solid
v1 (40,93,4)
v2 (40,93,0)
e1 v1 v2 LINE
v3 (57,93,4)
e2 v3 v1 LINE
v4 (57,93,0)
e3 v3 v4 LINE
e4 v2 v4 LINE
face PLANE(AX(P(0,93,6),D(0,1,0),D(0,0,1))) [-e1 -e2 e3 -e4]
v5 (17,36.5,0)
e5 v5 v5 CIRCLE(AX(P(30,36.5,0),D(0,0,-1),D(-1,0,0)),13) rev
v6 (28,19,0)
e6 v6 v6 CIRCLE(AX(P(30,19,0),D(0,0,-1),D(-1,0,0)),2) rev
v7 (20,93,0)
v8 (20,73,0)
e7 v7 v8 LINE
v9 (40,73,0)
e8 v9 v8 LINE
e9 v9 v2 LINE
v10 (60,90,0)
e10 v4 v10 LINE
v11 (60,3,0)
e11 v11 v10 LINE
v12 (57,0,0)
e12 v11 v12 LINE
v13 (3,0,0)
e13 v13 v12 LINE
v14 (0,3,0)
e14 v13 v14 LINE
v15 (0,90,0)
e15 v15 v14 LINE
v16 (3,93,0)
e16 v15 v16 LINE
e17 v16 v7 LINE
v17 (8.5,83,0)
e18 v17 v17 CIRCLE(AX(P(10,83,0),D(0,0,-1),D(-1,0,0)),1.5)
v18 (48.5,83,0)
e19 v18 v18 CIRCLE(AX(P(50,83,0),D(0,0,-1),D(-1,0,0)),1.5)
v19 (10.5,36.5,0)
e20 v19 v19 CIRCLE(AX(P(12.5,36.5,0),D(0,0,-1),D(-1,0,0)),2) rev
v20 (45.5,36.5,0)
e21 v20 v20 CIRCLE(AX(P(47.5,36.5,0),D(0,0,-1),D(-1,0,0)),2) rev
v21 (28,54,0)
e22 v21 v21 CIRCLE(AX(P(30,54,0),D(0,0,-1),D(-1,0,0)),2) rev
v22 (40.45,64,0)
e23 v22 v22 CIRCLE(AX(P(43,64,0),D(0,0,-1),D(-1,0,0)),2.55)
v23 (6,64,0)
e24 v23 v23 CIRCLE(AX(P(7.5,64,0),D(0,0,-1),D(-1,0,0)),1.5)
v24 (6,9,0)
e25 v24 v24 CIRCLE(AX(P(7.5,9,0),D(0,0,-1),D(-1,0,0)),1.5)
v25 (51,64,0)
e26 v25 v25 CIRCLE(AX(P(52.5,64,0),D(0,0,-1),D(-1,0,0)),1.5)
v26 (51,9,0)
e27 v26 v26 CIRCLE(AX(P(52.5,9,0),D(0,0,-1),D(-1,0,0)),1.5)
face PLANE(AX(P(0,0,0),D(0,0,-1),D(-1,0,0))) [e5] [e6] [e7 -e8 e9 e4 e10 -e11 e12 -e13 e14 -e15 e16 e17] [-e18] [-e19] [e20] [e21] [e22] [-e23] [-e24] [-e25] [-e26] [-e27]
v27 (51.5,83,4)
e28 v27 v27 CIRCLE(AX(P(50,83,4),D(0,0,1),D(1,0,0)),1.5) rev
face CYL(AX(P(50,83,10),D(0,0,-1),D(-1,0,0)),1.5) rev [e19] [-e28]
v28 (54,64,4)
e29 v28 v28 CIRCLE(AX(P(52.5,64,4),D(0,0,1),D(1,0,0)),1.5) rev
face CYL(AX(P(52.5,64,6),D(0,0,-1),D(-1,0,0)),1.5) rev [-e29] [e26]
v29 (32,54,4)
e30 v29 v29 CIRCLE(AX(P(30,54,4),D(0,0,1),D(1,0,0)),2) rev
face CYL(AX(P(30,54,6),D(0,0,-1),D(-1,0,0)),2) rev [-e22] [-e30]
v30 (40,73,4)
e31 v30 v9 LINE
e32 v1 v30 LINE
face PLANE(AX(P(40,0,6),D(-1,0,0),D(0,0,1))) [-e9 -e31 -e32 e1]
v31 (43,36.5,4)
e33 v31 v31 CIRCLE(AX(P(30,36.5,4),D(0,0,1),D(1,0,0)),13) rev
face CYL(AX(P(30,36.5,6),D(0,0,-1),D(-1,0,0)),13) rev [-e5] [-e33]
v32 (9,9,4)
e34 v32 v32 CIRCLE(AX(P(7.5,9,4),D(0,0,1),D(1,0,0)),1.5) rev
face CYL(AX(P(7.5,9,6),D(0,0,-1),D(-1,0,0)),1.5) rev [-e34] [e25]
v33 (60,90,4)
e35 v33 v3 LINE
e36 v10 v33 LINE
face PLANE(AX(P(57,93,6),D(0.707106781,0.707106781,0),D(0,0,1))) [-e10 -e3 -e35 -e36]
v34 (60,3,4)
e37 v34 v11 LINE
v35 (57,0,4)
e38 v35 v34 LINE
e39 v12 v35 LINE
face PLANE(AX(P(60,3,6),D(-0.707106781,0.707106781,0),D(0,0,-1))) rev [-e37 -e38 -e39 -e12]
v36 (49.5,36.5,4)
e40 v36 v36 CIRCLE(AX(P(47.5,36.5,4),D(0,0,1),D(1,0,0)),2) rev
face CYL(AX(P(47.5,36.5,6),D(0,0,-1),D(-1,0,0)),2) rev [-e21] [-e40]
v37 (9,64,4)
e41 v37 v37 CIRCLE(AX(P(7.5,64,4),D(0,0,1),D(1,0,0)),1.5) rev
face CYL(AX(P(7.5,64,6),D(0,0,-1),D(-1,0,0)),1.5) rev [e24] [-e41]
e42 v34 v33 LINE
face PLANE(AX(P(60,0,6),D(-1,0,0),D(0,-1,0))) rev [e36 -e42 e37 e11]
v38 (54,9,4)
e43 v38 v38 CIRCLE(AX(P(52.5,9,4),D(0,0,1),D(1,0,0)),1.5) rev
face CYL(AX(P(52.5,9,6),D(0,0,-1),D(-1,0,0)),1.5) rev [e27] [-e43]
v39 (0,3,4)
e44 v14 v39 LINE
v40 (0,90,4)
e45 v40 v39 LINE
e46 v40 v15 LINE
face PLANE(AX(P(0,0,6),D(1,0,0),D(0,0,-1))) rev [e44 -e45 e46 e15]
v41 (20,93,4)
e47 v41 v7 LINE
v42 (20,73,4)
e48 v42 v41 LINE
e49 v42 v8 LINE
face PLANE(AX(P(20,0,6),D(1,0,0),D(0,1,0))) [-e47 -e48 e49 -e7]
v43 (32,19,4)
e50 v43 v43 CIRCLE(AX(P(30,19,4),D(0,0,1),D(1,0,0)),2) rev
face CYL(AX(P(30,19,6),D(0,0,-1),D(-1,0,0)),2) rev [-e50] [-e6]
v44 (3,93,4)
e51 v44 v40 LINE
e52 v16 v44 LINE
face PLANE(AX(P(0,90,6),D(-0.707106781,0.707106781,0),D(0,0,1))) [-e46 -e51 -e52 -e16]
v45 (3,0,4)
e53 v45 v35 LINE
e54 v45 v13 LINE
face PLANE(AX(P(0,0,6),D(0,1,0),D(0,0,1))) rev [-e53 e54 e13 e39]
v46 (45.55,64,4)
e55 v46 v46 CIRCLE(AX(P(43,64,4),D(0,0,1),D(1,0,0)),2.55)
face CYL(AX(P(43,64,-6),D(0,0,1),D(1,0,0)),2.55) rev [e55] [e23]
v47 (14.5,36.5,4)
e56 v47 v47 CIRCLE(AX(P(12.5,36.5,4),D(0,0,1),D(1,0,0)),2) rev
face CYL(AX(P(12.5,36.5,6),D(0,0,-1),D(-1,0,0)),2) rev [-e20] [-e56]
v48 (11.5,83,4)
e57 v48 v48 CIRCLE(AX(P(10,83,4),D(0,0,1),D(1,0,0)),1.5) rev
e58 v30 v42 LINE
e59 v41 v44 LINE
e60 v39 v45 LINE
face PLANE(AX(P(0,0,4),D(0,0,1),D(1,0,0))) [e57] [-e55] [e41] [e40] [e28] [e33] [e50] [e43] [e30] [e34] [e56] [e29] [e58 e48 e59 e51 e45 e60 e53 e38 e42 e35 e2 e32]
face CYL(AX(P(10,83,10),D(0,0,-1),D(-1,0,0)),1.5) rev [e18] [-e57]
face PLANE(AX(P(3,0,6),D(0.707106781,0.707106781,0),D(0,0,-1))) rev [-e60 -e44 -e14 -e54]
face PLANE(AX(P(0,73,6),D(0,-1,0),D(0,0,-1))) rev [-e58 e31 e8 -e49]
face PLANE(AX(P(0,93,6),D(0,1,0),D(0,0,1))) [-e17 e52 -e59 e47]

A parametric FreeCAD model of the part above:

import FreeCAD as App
import Part
import Sketcher

V = App.Vector
Q = App.Units.Quantity


def edges_at(feature, points):
    """Names of the edges that pass closest to the given points."""
    edges = feature.Shape.Edges
    near = lambda p: min(range(len(edges)), key=lambda i: edges[i].distToShape(Part.Vertex(*p))[0])
    return sorted({f"Edge{near(p) + 1}" for p in points})

doc = App.newDocument("Part")
body = doc.addObject("PartDesign::Body", "Body")

sketch1 = doc.addObject("Sketcher::SketchObject", "Sketch")
body.addObject(sketch1)
sketch1.AttachmentSupport = (doc.XY_Plane, [""])
sketch1.MapMode = "FlatFace"
sketch1.addGeometry([
    Part.LineSegment(V(0, 73, 0), V(0, 0, 0)),
    Part.LineSegment(V(0, 0, 0), V(60, 0, 0)),
    Part.LineSegment(V(60, 0, 0), V(60, 73, 0)),
    Part.LineSegment(V(60, 73, 0), V(0, 73, 0)),
], False)
sketch1.addConstraint([
    Sketcher.Constraint("Coincident", 0, 2, 1, 1),
    Sketcher.Constraint("Coincident", 1, 2, 2, 1),
    Sketcher.Constraint("Coincident", 2, 2, 3, 1),
    Sketcher.Constraint("Coincident", 3, 2, 0, 1),
    Sketcher.Constraint("Vertical", 0),
    Sketcher.Constraint("Horizontal", 1),
    Sketcher.Constraint("Vertical", 2),
    Sketcher.Constraint("Horizontal", 3),
    Sketcher.Constraint("Coincident", 0, 2, -1, 1),
    Sketcher.Constraint("DistanceX", 1, 1, 1, 2, Q("60 mm")),
    Sketcher.Constraint("DistanceY", 0, 2, 0, 1, Q("73 mm")),
])
pad1 = doc.addObject("PartDesign::Pad", "Pad")
body.addObject(pad1)
pad1.Profile = sketch1
pad1.Length = 6

sketch2 = doc.addObject("Sketcher::SketchObject", "Sketch001")
body.addObject(sketch2)
sketch2.AttachmentSupport = (doc.XY_Plane, [""])
sketch2.MapMode = "FlatFace"
sketch2.addGeometry(Part.Circle(V(30, 36, 0), V(0, 0, 1), 8), False)
sketch2.addConstraint([
    Sketcher.Constraint("Diameter", 0, Q("16 mm")),
    Sketcher.Constraint("DistanceX", -1, 1, 0, 3, Q("30 mm")),
    Sketcher.Constraint("DistanceY", -1, 1, 0, 3, Q("36.5 mm")),
])
pocket1 = doc.addObject("PartDesign::Pocket", "Pocket")
body.addObject(pocket1)
pocket1.Profile = sketch2
pocket1.Type = "ThroughAll"
pocket1.Reversed = True

sketch3 = doc.addObject("Sketcher::SketchObject", "Sketch002")
body.addObject(sketch3)
sketch3.AttachmentSupport = (doc.XY_Plane, [""])
sketch3.MapMode = "FlatFace"
sketch3.addGeometry([
    Part.Circle(V(52.5, 64, 0), V(0, 0, 1), 1.5),
    Part.Circle(V(7.5, 64, 0), V(0, 0, 1), 1.5),
    Part.Circle(V(52.5, 9, 0), V(0, 0, 1), 1.5),
    Part.Circle(V(7.5, 9, 0), V(0, 0, 1), 1.5),
], False)
sketch3.addConstraint([
    Sketcher.Constraint("Equal", 0, 1),
    Sketcher.Constraint("Equal", 1, 2),
    Sketcher.Constraint("Equal", 2, 3),
    Sketcher.Constraint("Horizontal", 0, 3, 1, 3),
    Sketcher.Constraint("Horizontal", 2, 3, 3, 3),
    Sketcher.Constraint("Vertical", 0, 3, 2, 3),
    Sketcher.Constraint("Vertical", 1, 3, 3, 3),
    Sketcher.Constraint("Diameter", 0, Q("3 mm")),
    Sketcher.Constraint("DistanceY", -1, 1, 0, 3, Q("64 mm")),
    Sketcher.Constraint("DistanceY", -1, 1, 2, 3, Q("9 mm")),
    Sketcher.Constraint("DistanceX", 1, 3, 0, 3, Q("45 mm")),
    Sketcher.Constraint("DistanceX", -1, 1, 0, 3, Q("52.5 mm")),
])
pocket2 = doc.addObject("PartDesign::Pocket", "Pocket001")
body.addObject(pocket2)
pocket2.Profile = sketch3
pocket2.Type = "ThroughAll"
pocket2.Reversed = True

sketch4 = doc.addObject("Sketcher::SketchObject", "Sketch003")
body.addObject(sketch4)
sketch4.AttachmentSupport = (doc.XY_Plane, [""])
sketch4.MapMode = "FlatFace"
sketch4.addGeometry(Part.Circle(V(30, 36, 0), V(0, 0, 1), 21), False)
sketch4.addConstraint([
    Sketcher.Constraint("Diameter", 0, Q("42 mm")),
    Sketcher.Constraint("DistanceX", -1, 1, 0, 3, Q("30 mm")),
    Sketcher.Constraint("DistanceY", -1, 1, 0, 3, Q("36.5 mm")),
])
pocket3 = doc.addObject("PartDesign::Pocket", "Pocket002")
body.addObject(pocket3)
pocket3.Profile = sketch4
pocket3.Length = 4
pocket3.Reversed = True

sketch5 = doc.addObject("Sketcher::SketchObject", "Sketch004")
body.addObject(sketch5)
sketch5.AttachmentSupport = (doc.XY_Plane, [""])
sketch5.MapMode = "FlatFace"
sketch5.addGeometry([
    Part.LineSegment(V(60, 93, 0), V(60, 73, 0)),
    Part.LineSegment(V(60, 73, 0), V(40, 73, 0)),
    Part.LineSegment(V(40, 73, 0), V(40, 93, 0)),
    Part.LineSegment(V(40, 93, 0), V(60, 93, 0)),
    Part.LineSegment(V(20, 93, 0), V(20, 73, 0)),
    Part.LineSegment(V(20, 73, 0), V(0, 73, 0)),
    Part.LineSegment(V(0, 73, 0), V(0, 93, 0)),
    Part.LineSegment(V(0, 93, 0), V(20, 93, 0)),
], False)
sketch5.addConstraint([
    Sketcher.Constraint("Coincident", 0, 2, 1, 1),
    Sketcher.Constraint("Coincident", 1, 2, 2, 1),
    Sketcher.Constraint("Coincident", 2, 2, 3, 1),
    Sketcher.Constraint("Coincident", 3, 2, 0, 1),
    Sketcher.Constraint("Coincident", 4, 2, 5, 1),
    Sketcher.Constraint("Coincident", 5, 2, 6, 1),
    Sketcher.Constraint("Coincident", 6, 2, 7, 1),
    Sketcher.Constraint("Coincident", 7, 2, 4, 1),
    Sketcher.Constraint("Vertical", 0),
    Sketcher.Constraint("Horizontal", 1),
    Sketcher.Constraint("Vertical", 2),
    Sketcher.Constraint("Horizontal", 3),
    Sketcher.Constraint("Vertical", 4),
    Sketcher.Constraint("Horizontal", 5),
    Sketcher.Constraint("Vertical", 6),
    Sketcher.Constraint("Horizontal", 7),
    Sketcher.Constraint("PointOnObject", 5, 2, -2),
    Sketcher.Constraint("Horizontal", 1, 2, 4, 2),
    Sketcher.Constraint("Horizontal", 3, 2, 6, 2),
    Sketcher.Constraint("Equal", 3, 5),
    Sketcher.Constraint("Equal", 7, 0),
    Sketcher.Constraint("DistanceX", 1, 2, 1, 1, Q("20 mm")),
    Sketcher.Constraint("DistanceX", -1, 1, 0, 2, Q("60 mm")),
    Sketcher.Constraint("DistanceY", -1, 1, 0, 2, Q("73 mm")),
])
pad2 = doc.addObject("PartDesign::Pad", "Pad001")
body.addObject(pad2)
pad2.Profile = sketch5
pad2.Length = 6

sketch6 = doc.addObject("Sketcher::SketchObject", "Sketch005")
body.addObject(sketch6)
sketch6.AttachmentSupport = (doc.XY_Plane, [""])
sketch6.MapMode = "FlatFace"
sketch6.addGeometry([
    Part.Circle(V(10, 83, 0), V(0, 0, 1), 1.5),
    Part.Circle(V(50, 83, 0), V(0, 0, 1), 1.5),
], False)
sketch6.addConstraint([
    Sketcher.Constraint("Equal", 0, 1),
    Sketcher.Constraint("Horizontal", 0, 3, 1, 3),
    Sketcher.Constraint("Diameter", 0, Q("3 mm")),
    Sketcher.Constraint("DistanceX", -1, 1, 0, 3, Q("10 mm")),
    Sketcher.Constraint("DistanceY", -1, 1, 0, 3, Q("83 mm")),
    Sketcher.Constraint("DistanceX", -1, 1, 1, 3, Q("50 mm")),
])
pocket4 = doc.addObject("PartDesign::Pocket", "Pocket003")
body.addObject(pocket4)
pocket4.Profile = sketch6
pocket4.Length = 10
pocket4.Reversed = True
doc.recompute()

chamfer = doc.addObject("PartDesign::Chamfer", "Chamfer")
body.addObject(chamfer)
chamfer.Base = (pocket4, edges_at(pocket4, [(60, 0, 3), (0, 0, 3)]))
chamfer.Size = 3
doc.recompute()

chamfer2 = doc.addObject("PartDesign::Chamfer", "Chamfer001")
body.addObject(chamfer2)
chamfer2.Base = (chamfer, edges_at(chamfer, [(60, 93, 3), (0, 93, 3)]))
chamfer2.Size = 3

sketch7 = doc.addObject("Sketcher::SketchObject", "Sketch006")
body.addObject(sketch7)
sketch7.AttachmentSupport = (doc.XY_Plane, [""])
sketch7.MapMode = "FlatFace"
sketch7.AttachmentOffset = App.Placement(V(0, 0, 4), App.Rotation())
sketch7.addGeometry([
    Part.Circle(V(30, 54, 0), V(0, 0, 1), 2),
    Part.Circle(V(12.5, 36.5, 0), V(0, 0, 1), 2),
    Part.Circle(V(30, 19, 0), V(0, 0, 1), 2),
    Part.Circle(V(47.5, 36.5, 0), V(0, 0, 1), 2),
], False)
sketch7.addConstraint([
    Sketcher.Constraint("Equal", 0, 1),
    Sketcher.Constraint("Equal", 1, 2),
    Sketcher.Constraint("Equal", 2, 3),
    Sketcher.Constraint("Horizontal", 1, 3, 3, 3),
    Sketcher.Constraint("Vertical", 0, 3, 2, 3),
    Sketcher.Constraint("Diameter", 0, Q("4 mm")),
    Sketcher.Constraint("DistanceX", -1, 1, 0, 3, Q("30 mm")),
    Sketcher.Constraint("DistanceY", -1, 1, 0, 3, Q("54 mm")),
    Sketcher.Constraint("DistanceY", -1, 1, 2, 3, Q("19 mm")),
    Sketcher.Constraint("DistanceX", 1, 3, 3, 3, Q("35 mm")),
    Sketcher.Constraint("DistanceX", -1, 1, 1, 3, Q("12.5 mm")),
    Sketcher.Constraint("DistanceY", -1, 1, 1, 3, Q("36.5 mm")),
])
pocket5 = doc.addObject("PartDesign::Pocket", "Pocket004")
body.addObject(pocket5)
pocket5.Profile = sketch7
pocket5.Type = "ThroughAll"
pocket5.Reversed = True

sketch8 = doc.addObject("Sketcher::SketchObject", "Sketch007")
body.addObject(sketch8)
sketch8.AttachmentSupport = (doc.XY_Plane, [""])
sketch8.MapMode = "FlatFace"
sketch8.AttachmentOffset = App.Placement(V(0, 0, 4), App.Rotation())
sketch8.addGeometry(Part.Circle(V(30, 36, 0), V(0, 0, 1), 13), False)
sketch8.addConstraint([
    Sketcher.Constraint("Diameter", 0, Q("26 mm")),
    Sketcher.Constraint("DistanceX", -1, 1, 0, 3, Q("30 mm")),
    Sketcher.Constraint("DistanceY", -1, 1, 0, 3, Q("36.5 mm")),
])
pocket6 = doc.addObject("PartDesign::Pocket", "Pocket005")
body.addObject(pocket6)
pocket6.Profile = sketch8
pocket6.Type = "ThroughAll"
pocket6.Reversed = True

sketch9 = doc.addObject("Sketcher::SketchObject", "Sketch008")
body.addObject(sketch9)
sketch9.AttachmentSupport = (doc.XY_Plane, [""])
sketch9.MapMode = "FlatFace"
sketch9.addGeometry([
    Part.Circle(V(30, 36.5, 0), V(0, 0, 1), 21),
    Part.Circle(V(30, 19, 0), V(0, 0, 1), 2),
    Part.Circle(V(47.5, 36.5, 0), V(0, 0, 1), 2),
    Part.Circle(V(30, 36.5, 0), V(0, 0, 1), 13),
    Part.Circle(V(12.5, 36.5, 0), V(0, 0, 1), 2),
    Part.Circle(V(30, 54, 0), V(0, 0, 1), 2),
], False)
sketch9.addConstraint([
    Sketcher.Constraint("Coincident", 3, 3, 0, 3),
    Sketcher.Constraint("Equal", 1, 2),
    Sketcher.Constraint("Equal", 2, 4),
    Sketcher.Constraint("Equal", 4, 5),
    Sketcher.Constraint("Horizontal", 0, 3, 2, 3),
    Sketcher.Constraint("Horizontal", 3, 3, 4, 3),
    Sketcher.Constraint("Vertical", 0, 3, 1, 3),
    Sketcher.Constraint("Vertical", 3, 3, 5, 3),
    Sketcher.Constraint("Diameter", 0, Q("42 mm")),
    Sketcher.Constraint("Diameter", 1, Q("4 mm")),
    Sketcher.Constraint("Diameter", 3, Q("26 mm")),
    Sketcher.Constraint("DistanceX", -1, 1, 0, 3, Q("30 mm")),
    Sketcher.Constraint("DistanceY", -1, 1, 1, 3, Q("19 mm")),
    Sketcher.Constraint("DistanceY", -1, 1, 5, 3, Q("54 mm")),
    Sketcher.Constraint("DistanceX", 4, 3, 2, 3, Q("35 mm")),
    Sketcher.Constraint("DistanceY", -1, 1, 0, 3, Q("36.5 mm")),
    Sketcher.Constraint("DistanceX", -1, 1, 2, 3, Q("47.5 mm")),
])
pad3 = doc.addObject("PartDesign::Pad", "Pad002")
body.addObject(pad3)
pad3.Profile = sketch9
pad3.Length = 4

sketch10 = doc.addObject("Sketcher::SketchObject", "Sketch009")
body.addObject(sketch10)
sketch10.AttachmentSupport = (doc.XY_Plane, [""])
sketch10.MapMode = "FlatFace"
sketch10.AttachmentOffset = App.Placement(V(0, 0, 6), App.Rotation())
sketch10.addGeometry([
    Part.LineSegment(V(60, 3, 0), V(60, 90, 0)),
    Part.LineSegment(V(60, 90, 0), V(57, 93, 0)),
    Part.LineSegment(V(57, 93, 0), V(40, 93, 0)),
    Part.LineSegment(V(40, 93, 0), V(40, 73, 0)),
    Part.LineSegment(V(40, 73, 0), V(20, 73, 0)),
    Part.LineSegment(V(20, 73, 0), V(20, 93, 0)),
    Part.LineSegment(V(20, 93, 0), V(3, 93, 0)),
    Part.LineSegment(V(3, 93, 0), V(0, 90, 0)),
    Part.LineSegment(V(0, 90, 0), V(0, 3, 0)),
    Part.LineSegment(V(0, 3, 0), V(3, 0, 0)),
    Part.LineSegment(V(3, 0, 0), V(57, 0, 0)),
    Part.LineSegment(V(57, 0, 0), V(60, 3, 0)),
], False)
sketch10.addConstraint([
    Sketcher.Constraint("Coincident", 0, 2, 1, 1),
    Sketcher.Constraint("Coincident", 1, 2, 2, 1),
    Sketcher.Constraint("Coincident", 2, 2, 3, 1),
    Sketcher.Constraint("Coincident", 3, 2, 4, 1),
    Sketcher.Constraint("Coincident", 4, 2, 5, 1),
    Sketcher.Constraint("Coincident", 5, 2, 6, 1),
    Sketcher.Constraint("Coincident", 6, 2, 7, 1),
    Sketcher.Constraint("Coincident", 7, 2, 8, 1),
    Sketcher.Constraint("Coincident", 8, 2, 9, 1),
    Sketcher.Constraint("Coincident", 9, 2, 10, 1),
    Sketcher.Constraint("Coincident", 10, 2, 11, 1),
    Sketcher.Constraint("Coincident", 11, 2, 0, 1),
    Sketcher.Constraint("Vertical", 0),
    Sketcher.Constraint("Horizontal", 2),
    Sketcher.Constraint("Vertical", 3),
    Sketcher.Constraint("Horizontal", 4),
    Sketcher.Constraint("Vertical", 5),
    Sketcher.Constraint("Horizontal", 6),
    Sketcher.Constraint("Vertical", 8),
    Sketcher.Constraint("Horizontal", 10),
    Sketcher.Constraint("PointOnObject", 7, 2, -2),
    Sketcher.Constraint("PointOnObject", 9, 2, -1),
    Sketcher.Constraint("Perpendicular", 1, 7),
    Sketcher.Constraint("Perpendicular", 7, 9),
    Sketcher.Constraint("Perpendicular", 9, 11),
    Sketcher.Constraint("Horizontal", 2, 2, 5, 2),
    Sketcher.Constraint("Horizontal", 0, 2, 7, 2),
    Sketcher.Constraint("Horizontal", 8, 2, 11, 2),
    Sketcher.Constraint("Vertical", 6, 2, 9, 2),
    Sketcher.Constraint("Vertical", 1, 2, 10, 2),
    Sketcher.Constraint("Equal", 2, 6),
    Sketcher.Constraint("Equal", 4, 3),
    Sketcher.Constraint("DistanceX", 2, 2, 2, 1, Q("17 mm")),
    Sketcher.Constraint("DistanceX", 4, 2, 4, 1, Q("20 mm")),
    Sketcher.Constraint("DistanceY", 0, 1, 0, 2, Q("87 mm")),
    Sketcher.Constraint("DistanceX", -1, 1, 0, 2, Q("60 mm")),
])
pocket7 = doc.addObject("PartDesign::Pocket", "Pocket006")
body.addObject(pocket7)
pocket7.Profile = sketch10
pocket7.Length = 2

sketch11 = doc.addObject("Sketcher::SketchObject", "Sketch010")
body.addObject(sketch11)
sketch11.AttachmentSupport = (doc.XY_Plane, [""])
sketch11.MapMode = "FlatFace"
sketch11.AttachmentOffset = App.Placement(V(0, 0, 4), App.Rotation())
sketch11.addGeometry(Part.Circle(V(43, 64, 0), V(0, 0, 1), 2.5), False)
sketch11.addConstraint([
    Sketcher.Constraint("Diameter", 0, Q("5.1 mm")),
    Sketcher.Constraint("DistanceX", -1, 1, 0, 3, Q("43 mm")),
    Sketcher.Constraint("DistanceY", -1, 1, 0, 3, Q("64 mm")),
])
pocket8 = doc.addObject("PartDesign::Pocket", "Pocket007")
body.addObject(pocket8)
pocket8.Profile = sketch11
pocket8.Length = 10

doc.recompute()
